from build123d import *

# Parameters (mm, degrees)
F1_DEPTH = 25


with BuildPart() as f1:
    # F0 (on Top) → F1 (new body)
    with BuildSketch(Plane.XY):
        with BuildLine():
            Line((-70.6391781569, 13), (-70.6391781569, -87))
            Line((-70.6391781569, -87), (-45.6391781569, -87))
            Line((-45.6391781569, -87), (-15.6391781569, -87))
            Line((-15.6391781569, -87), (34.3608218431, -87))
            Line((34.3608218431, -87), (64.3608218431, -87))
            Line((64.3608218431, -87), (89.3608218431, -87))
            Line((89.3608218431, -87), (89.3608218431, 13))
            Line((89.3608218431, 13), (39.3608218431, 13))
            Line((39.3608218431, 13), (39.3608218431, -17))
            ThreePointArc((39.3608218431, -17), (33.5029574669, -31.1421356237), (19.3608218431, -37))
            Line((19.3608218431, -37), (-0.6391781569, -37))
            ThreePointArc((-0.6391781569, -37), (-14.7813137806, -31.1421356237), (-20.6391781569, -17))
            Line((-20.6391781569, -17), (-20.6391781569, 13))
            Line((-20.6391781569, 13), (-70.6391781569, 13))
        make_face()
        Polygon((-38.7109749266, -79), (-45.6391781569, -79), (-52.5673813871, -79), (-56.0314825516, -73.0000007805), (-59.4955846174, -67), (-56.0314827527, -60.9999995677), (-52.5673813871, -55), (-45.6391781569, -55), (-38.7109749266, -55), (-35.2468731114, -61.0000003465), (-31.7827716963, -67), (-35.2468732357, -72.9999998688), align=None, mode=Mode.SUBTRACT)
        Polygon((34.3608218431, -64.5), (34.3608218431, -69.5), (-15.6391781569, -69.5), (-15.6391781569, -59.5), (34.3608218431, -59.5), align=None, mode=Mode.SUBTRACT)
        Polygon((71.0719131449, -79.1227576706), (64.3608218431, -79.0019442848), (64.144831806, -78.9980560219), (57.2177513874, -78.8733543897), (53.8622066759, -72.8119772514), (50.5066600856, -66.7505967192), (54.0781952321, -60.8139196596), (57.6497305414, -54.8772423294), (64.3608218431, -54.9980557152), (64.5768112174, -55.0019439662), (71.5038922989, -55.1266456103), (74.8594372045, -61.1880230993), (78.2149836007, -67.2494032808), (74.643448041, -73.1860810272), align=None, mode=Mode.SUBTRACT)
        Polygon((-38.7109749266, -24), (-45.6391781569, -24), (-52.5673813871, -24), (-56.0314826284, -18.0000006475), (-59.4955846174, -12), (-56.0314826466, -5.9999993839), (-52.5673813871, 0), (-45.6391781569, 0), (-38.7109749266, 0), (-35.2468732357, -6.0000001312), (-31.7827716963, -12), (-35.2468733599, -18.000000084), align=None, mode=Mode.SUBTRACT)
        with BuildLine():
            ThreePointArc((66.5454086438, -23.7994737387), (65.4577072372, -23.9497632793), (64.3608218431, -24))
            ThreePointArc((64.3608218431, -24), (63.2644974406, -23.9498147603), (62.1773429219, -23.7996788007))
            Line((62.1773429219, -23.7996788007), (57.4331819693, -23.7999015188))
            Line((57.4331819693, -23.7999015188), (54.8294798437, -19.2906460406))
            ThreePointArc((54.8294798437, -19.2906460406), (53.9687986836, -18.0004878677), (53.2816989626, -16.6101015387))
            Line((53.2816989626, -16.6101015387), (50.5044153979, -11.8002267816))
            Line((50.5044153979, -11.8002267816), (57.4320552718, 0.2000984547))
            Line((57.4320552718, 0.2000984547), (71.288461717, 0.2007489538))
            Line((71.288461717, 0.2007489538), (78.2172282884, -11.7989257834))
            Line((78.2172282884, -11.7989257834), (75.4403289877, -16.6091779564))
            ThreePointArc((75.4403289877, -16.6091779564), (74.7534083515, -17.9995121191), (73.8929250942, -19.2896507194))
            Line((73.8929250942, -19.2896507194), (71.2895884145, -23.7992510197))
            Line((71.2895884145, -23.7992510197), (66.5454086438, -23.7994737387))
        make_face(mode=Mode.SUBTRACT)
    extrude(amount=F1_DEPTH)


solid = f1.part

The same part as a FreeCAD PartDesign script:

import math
import FreeCAD as App
import Part
import Sketcher
from FreeCAD import Vector
Q = App.Units.Quantity


def add_polygon(sketch, points):
    """Adds a closed chain of lines whose ends are joined by coincident constraints."""
    first, n = sketch.GeometryCount, len(points)
    for a, b in zip(points, points[1:] + points[:1]):
        sketch.addGeometry(Part.LineSegment(App.Vector(*a, 0), App.Vector(*b, 0)), False)
    for i in range(n):
        sketch.addConstraint(Sketcher.Constraint("Coincident", first + i, 2, first + (i + 1) % n, 1))

doc = App.newDocument("Part")
params = doc.addObject("Spreadsheet::Sheet", "Params")
for row, (alias, value) in enumerate([
    ("sketch1_radius", "20 mm"),
    ("sketch1_radius2", "12 mm"),
    ("sketch1_width", "160 mm"),
    ("sketch1_width2", "50 mm"),
    ("sketch1_height", "100 mm"),
    ("pad1_length", "25 mm"),
], start=1):
    params.set(f"A{row}", alias)
    params.set(f"B{row}", "=" + value)
    params.setAlias(f"B{row}", alias)

body = doc.addObject("PartDesign::Body", "Body")

sketch1 = doc.addObject("Sketcher::SketchObject", "Sketch")
body.addObject(sketch1)
sketch1.AttachmentSupport = (doc.XY_Plane, [""])
sketch1.MapMode = "FlatFace"
sketch1.addGeometry(Part.LineSegment(Vector(-70.64, 13, 0), Vector(-70.64, -87, 0)), False)
sketch1.addGeometry(Part.LineSegment(Vector(-70.64, -87, 0), Vector(89.36, -87, 0)), False)
sketch1.addGeometry(Part.LineSegment(Vector(89.36, -87, 0), Vector(89.36, 13, 0)), False)
sketch1.addGeometry(Part.LineSegment(Vector(89.36, 13, 0), Vector(39.36, 13, 0)), False)
sketch1.addGeometry(Part.LineSegment(Vector(39.36, 13, 0), Vector(39.36, -17, 0)), False)
sketch1.addGeometry(Part.ArcOfCircle(Part.Circle(Vector(19.36, -17, 0), Vector(0, 0, 1), 20), math.radians(-90), math.radians(0)), False)
sketch1.addGeometry(Part.LineSegment(Vector(19.36, -37, 0), Vector(-0.64, -37, 0)), False)
sketch1.addGeometry(Part.ArcOfCircle(Part.Circle(Vector(-0.64, -17, 0), Vector(0, 0, 1), 20), math.radians(180), math.radians(270)), False)
sketch1.addGeometry(Part.LineSegment(Vector(-20.64, -17, 0), Vector(-20.64, 13, 0)), False)
sketch1.addGeometry(Part.LineSegment(Vector(-20.64, 13, 0), Vector(-70.64, 13, 0)), False)
add_polygon(sketch1, [(-31.78, -67), (-38.71, -79), (-52.57, -79), (-56.03, -73), (-59.5, -67), (-56.03, -61), (-52.57, -55), (-38.71, -55)])
add_polygon(sketch1, [(34.36, -59.5), (34.36, -69.5), (-15.64, -69.5), (-15.64, -59.5)])
add_polygon(sketch1, [(74.64, -73.19), (71.07, -79.12), (64.36, -79), (64.14, -79), (57.22, -78.87), (53.86, -72.81), (50.51, -66.75), (57.65, -54.88), (64.36, -55), (64.58, -55), (71.5, -55.13), (74.86, -61.19), (78.21, -67.25)])
add_polygon(sketch1, [(-35.25, -18), (-38.71, -24), (-52.57, -24), (-56.03, -18), (-59.5, -12), (-56.03, -6), (-52.57, 0), (-38.71, 0), (-31.78, -12)])
sketch1.addGeometry(Part.LineSegment(Vector(71.29, -23.8, 0), Vector(66.55, -23.8, 0)), False)
sketch1.addGeometry(Part.ArcOfCircle(Part.Circle(Vector(64.36, -12, 0), Vector(0, 0, 1), 12), math.radians(-90), math.radians(-79.51)), False)
sketch1.addGeometry(Part.ArcOfCircle(Part.Circle(Vector(64.36, -12, 0), Vector(0, 0, 1), 12), math.radians(-100.48), math.radians(-90)), False)
sketch1.addGeometry(Part.LineSegment(Vector(62.18, -23.8, 0), Vector(57.43, -23.8, 0)), False)
sketch1.addGeometry(Part.LineSegment(Vector(57.43, -23.8, 0), Vector(54.83, -19.29, 0)), False)
sketch1.addGeometry(Part.ArcOfCircle(Part.Circle(Vector(64.36, -12, 0), Vector(0, 0, 1), 12), math.radians(-157.41), math.radians(-142.59)), False)
sketch1.addGeometry(Part.LineSegment(Vector(53.28, -16.61, 0), Vector(50.5, -11.8, 0)), False)
sketch1.addGeometry(Part.LineSegment(Vector(50.5, -11.8, 0), Vector(57.43, 0.2, 0)), False)
sketch1.addGeometry(Part.LineSegment(Vector(57.43, 0.2, 0), Vector(71.29, 0.2, 0)), False)
sketch1.addGeometry(Part.LineSegment(Vector(71.29, 0.2, 0), Vector(78.22, -11.8, 0)), False)
sketch1.addGeometry(Part.LineSegment(Vector(78.22, -11.8, 0), Vector(75.44, -16.61, 0)), False)
sketch1.addGeometry(Part.ArcOfCircle(Part.Circle(Vector(64.36, -12, 0), Vector(0, 0, 1), 12), math.radians(-37.41), math.radians(-22.59)), False)
sketch1.addGeometry(Part.LineSegment(Vector(73.89, -19.29, 0), Vector(71.29, -23.8, 0)), False)
sketch1.addConstraint(Sketcher.Constraint("Coincident", 0, 2, 1, 1))
sketch1.addConstraint(Sketcher.Constraint("Coincident", 1, 2, 2, 1))
sketch1.addConstraint(Sketcher.Constraint("Coincident", 2, 2, 3, 1))
sketch1.addConstraint(Sketcher.Constraint("Coincident", 3, 2, 4, 1))
sketch1.addConstraint(Sketcher.Constraint("Tangent", 4, 2, 5, 2))
sketch1.addConstraint(Sketcher.Constraint("Tangent", 5, 1, 6, 1))
sketch1.addConstraint(Sketcher.Constraint("Tangent", 6, 2, 7, 2))
sketch1.addConstraint(Sketcher.Constraint("Tangent", 7, 1, 8, 1))
sketch1.addConstraint(Sketcher.Constraint("Coincident", 8, 2, 9, 1))
sketch1.addConstraint(Sketcher.Constraint("Coincident", 9, 2, 0, 1))
sketch1.addConstraint(Sketcher.Constraint("Coincident", 44, 2, 45, 2))
sketch1.addConstraint(Sketcher.Constraint("Tangent", 45, 1, 46, 2))
sketch1.addConstraint(Sketcher.Constraint("Coincident", 46, 1, 47, 1))
sketch1.addConstraint(Sketcher.Constraint("Coincident", 47, 2, 48, 1))
sketch1.addConstraint(Sketcher.Constraint("Coincident", 48, 2, 49, 2))
sketch1.addConstraint(Sketcher.Constraint("Coincident", 49, 1, 50, 1))
sketch1.addConstraint(Sketcher.Constraint("Coincident", 50, 2, 51, 1))
sketch1.addConstraint(Sketcher.Constraint("Coincident", 51, 2, 52, 1))
sketch1.addConstraint(Sketcher.Constraint("Coincident", 52, 2, 53, 1))
sketch1.addConstraint(Sketcher.Constraint("Coincident", 53, 2, 54, 1))
sketch1.addConstraint(Sketcher.Constraint("Coincident", 54, 2, 55, 2))
sketch1.addConstraint(Sketcher.Constraint("Coincident", 55, 1, 56, 1))
sketch1.addConstraint(Sketcher.Constraint("Coincident", 56, 2, 44, 1))
sketch1.addConstraint(Sketcher.Constraint("Vertical", 0))
sketch1.addConstraint(Sketcher.Constraint("Horizontal", 1))
sketch1.addConstraint(Sketcher.Constraint("Vertical", 2))
sketch1.addConstraint(Sketcher.Constraint("Horizontal", 3))
sketch1.addConstraint(Sketcher.Constraint("Vertical", 4))
sketch1.addConstraint(Sketcher.Constraint("Horizontal", 6))
sketch1.addConstraint(Sketcher.Constraint("Vertical", 8))
sketch1.addConstraint(Sketcher.Constraint("Horizontal", 9))
sketch1.addConstraint(Sketcher.Constraint("Horizontal", 11))
sketch1.addConstraint(Sketcher.Constraint("Horizontal", 16))
sketch1.addConstraint(Sketcher.Constraint("Vertical", 18))
sketch1.addConstraint(Sketcher.Constraint("Horizontal", 19))
sketch1.addConstraint(Sketcher.Constraint("Vertical", 20))
sketch1.addConstraint(Sketcher.Constraint("Horizontal", 21))
sketch1.addConstraint(Sketcher.Constraint("Horizontal", 36))
sketch1.addConstraint(Sketcher.Constraint("Horizontal", 41))
sketch1.addConstraint(Sketcher.Constraint("Coincident", 49, 3, 45, 3))
sketch1.addConstraint(Sketcher.Constraint("Coincident", 55, 3, 45, 3))
sketch1.addConstraint(Sketcher.Constraint("Equal", 5, 7))
sketch1.addConstraint(Sketcher.Constraint("Equal", 45, 46))
sketch1.addConstraint(Sketcher.Constraint("Equal", 46, 49))
sketch1.addConstraint(Sketcher.Constraint("Equal", 49, 55))
sketch1.addConstraint(Sketcher.Constraint("PointOnObject", 40, 2, -1))
sketch1.addConstraint(Sketcher.Constraint("Parallel", 12, 13))
sketch1.addConstraint(Sketcher.Constraint("Parallel", 10, 14))
sketch1.addConstraint(Sketcher.Constraint("Parallel", 14, 15))
sketch1.addConstraint(Sketcher.Constraint("Parallel", 13, 17))
sketch1.addConstraint(Sketcher.Constraint("Parallel", 23, 24))
sketch1.addConstraint(Sketcher.Constraint("Parallel", 24, 25))
sketch1.addConstraint(Sketcher.Constraint("Parallel", 26, 27))
sketch1.addConstraint(Sketcher.Constraint("Parallel", 22, 28))
sketch1.addConstraint(Sketcher.Constraint("Parallel", 25, 29))
sketch1.addConstraint(Sketcher.Constraint("Parallel", 29, 30))
sketch1.addConstraint(Sketcher.Constraint("Parallel", 30, 31))
sketch1.addConstraint(Sketcher.Constraint("Parallel", 27, 32))
sketch1.addConstraint(Sketcher.Constraint("Parallel", 32, 33))
sketch1.addConstraint(Sketcher.Constraint("Parallel", 28, 34))
sketch1.addConstraint(Sketcher.Constraint("Parallel", 15, 35))
sketch1.addConstraint(Sketcher.Constraint("Parallel", 17, 37))
sketch1.addConstraint(Sketcher.Constraint("Parallel", 37, 38))
sketch1.addConstraint(Sketcher.Constraint("Parallel", 35, 39))
sketch1.addConstraint(Sketcher.Constraint("Parallel", 39, 40))
sketch1.addConstraint(Sketcher.Constraint("Parallel", 38, 42))
sketch1.addConstraint(Sketcher.Constraint("Parallel", 40, 43))
sketch1.addConstraint(Sketcher.Constraint("Parallel", 44, 47))
sketch1.addConstraint(Sketcher.Constraint("Parallel", 48, 50))
sketch1.addConstraint(Sketcher.Constraint("Parallel", 47, 52))
sketch1.addConstraint(Sketcher.Constraint("Parallel", 50, 53))
sketch1.addConstraint(Sketcher.Constraint("Parallel", 51, 54))
sketch1.addConstraint(Sketcher.Constraint("Parallel", 54, 56))
sketch1.addConstraint(Sketcher.Constraint("Horizontal", 3, 2, 8, 2))
sketch1.addConstraint(Sketcher.Constraint("Horizontal", 13, 2, 17, 2))
sketch1.addConstraint(Sketcher.Constraint("Horizontal", 55, 3, 38, 2))
sketch1.addConstraint(Sketcher.Constraint("Horizontal", 38, 2, 42, 2))
sketch1.addConstraint(Sketcher.Constraint("Horizontal", 37, 2, 43, 2))
sketch1.addConstraint(Sketcher.Constraint("Horizontal", 36, 2, 45, 1))
sketch1.addConstraint(Sketcher.Constraint("Vertical", 12, 2, 14, 2))
sketch1.addConstraint(Sketcher.Constraint("Vertical", 11, 2, 15, 2))
sketch1.addConstraint(Sketcher.Constraint("Vertical", 10, 2, 16, 2))
sketch1.addConstraint(Sketcher.Constraint("Vertical", 55, 3, 23, 2))
sketch1.addConstraint(Sketcher.Constraint("Vertical", 23, 2, 29, 2))
sketch1.addConstraint(Sketcher.Constraint("Vertical", 16, 2, 35, 2))
sketch1.addConstraint(Sketcher.Constraint("Vertical", 15, 2, 36, 2))
sketch1.addConstraint(Sketcher.Constraint("Vertical", 14, 2, 37, 2))
sketch1.addConstraint(Sketcher.Constraint("Vertical", 13, 2, 38, 2))
sketch1.addConstraint(Sketcher.Constraint("Vertical", 37, 2, 39, 2))
sketch1.addConstraint(Sketcher.Constraint("Vertical", 36, 2, 40, 2))
sketch1.addConstraint(Sketcher.Constraint("Vertical", 29, 2, 45, 1))
sketch1.addConstraint(Sketcher.Constraint("Equal", 3, 9))
sketch1.addConstraint(Sketcher.Constraint("Equal", 9, 19))
sketch1.addConstraint(Sketcher.Constraint("Equal", 12, 13))
sketch1.addConstraint(Sketcher.Constraint("Equal", 15, 22))
sketch1.addConstraint(Sketcher.Constraint("Equal", 22, 25))
sketch1.addConstraint(Sketcher.Constraint("Equal", 25, 26))
sketch1.addConstraint(Sketcher.Constraint("Equal", 14, 27))
sketch1.addConstraint(Sketcher.Constraint("Equal", 17, 28))
sketch1.addConstraint(Sketcher.Constraint("Equal", 23, 29))
sketch1.addConstraint(Sketcher.Constraint("Equal", 24, 30))
sketch1.addConstraint(Sketcher.Constraint("Equal", 27, 31))
sketch1.addConstraint(Sketcher.Constraint("Equal", 31, 32))
sketch1.addConstraint(Sketcher.Constraint("Equal", 42, 51))
sketch1.addConstraint(Sketcher.Constraint("Equal", 51, 52))
sketch1.addConstraint(Sketcher.Constraint("Equal", 52, 53))
sketch1.addConstraint(Sketcher.Constraint("Radius", 5, 20.0))
sketch1.addConstraint(Sketcher.Constraint("Radius", 45, 12.0))
sketch1.addConstraint(Sketcher.Constraint("DistanceX", 1, 1, 1, 2, 160.0))
sketch1.addConstraint(Sketcher.Constraint("DistanceX", 3, 2, 3, 1, 50.0))
sketch1.addConstraint(Sketcher.Constraint("DistanceY", 0, 2, 0, 1, 100.0))
sketch1.addConstraint(Sketcher.Constraint("DistanceY", 4, 2, 4, 1, 30.0))
sketch1.addConstraint(Sketcher.Constraint("DistanceY", 18, 2, 18, 1, 10.0))
sketch1.addConstraint(Sketcher.Constraint("Angle", 10, Q("-120 deg")))
sketch1.addConstraint(Sketcher.Constraint("DistanceY", 5, 3, -1, 1, 17.0))
sketch1.addConstraint(Sketcher.Constraint("DistanceY", 10, 2, -1, 1, 79.0))
sketch1.addConstraint(Sketcher.Constraint("DistanceY", 18, 2, -1, 1, 69.5))
sketch1.addConstraint(Sketcher.Constraint("DistanceY", 47, 2, -1, 1, 23.799902))
sketch1.addConstraint(Sketcher.Constraint("DistanceX", -1, 1, 49, 1, 53.281699))
sketch1.addConstraint(Sketcher.Constraint("DistanceY", 49, 1, -1, 1, 16.610102))
sketch1.addConstraint(Sketcher.Constraint("DistanceY", -1, 1, 51, 2, 0.200098))
sketch1.addConstraint(Sketcher.Constraint("Distance", 23, 6.712179))
sketch1.addConstraint(Sketcher.Constraint("Distance", 44, 4.74418))
sketch1.addConstraint(Sketcher.Constraint("Distance", 47, 4.744161))
sketch1.addConstraint(Sketcher.Constraint("Distance", 48, 5.206981))
sketch1.addConstraint(Sketcher.Constraint("Distance", 54, 5.55425))
sketch1.addConstraint(Sketcher.Constraint("DistanceX", 11, 2, 11, 1, 13.856406))
sketch1.addConstraint(Sketcher.Constraint("DistanceX", -1, 1, 5, 3, 19.360822))
sketch1.addConstraint(Sketcher.Constraint("DistanceX", 11, 2, -1, 1, 52.567381))
sketch1.addConstraint(Sketcher.Constraint("DistanceX", -1, 1, 18, 2, 34.360822))
sketch1.addConstraint(Sketcher.Constraint("DistanceX", -1, 1, 24, 2, 64.144832))
sketch1.addConstraint(Sketcher.Constraint("DistanceX", -1, 1, 25, 2, 57.217751))
sketch1.addConstraint(Sketcher.Constraint("DistanceX", -1, 1, 27, 2, 50.50666))
sketch1.addConstraint(Sketcher.Constraint("DistanceY", 34, 2, -1, 1, 73.186081))
sketch1.addConstraint(Sketcher.Constraint("DistanceX", -1, 1, 44, 2, 66.545409))
sketch1.addConstraint(Sketcher.Constraint("DistanceY", 46, 1, -1, 1, 23.799679))
sketch1.setExpression("Constraints[140]", "Params.sketch1_radius")
sketch1.setExpression("Constraints[141]", "Params.sketch1_radius2")
sketch1.setExpression("Constraints[142]", "Params.sketch1_width")
sketch1.setExpression("Constraints[143]", "Params.sketch1_width2")
sketch1.setExpression("Constraints[144]", "Params.sketch1_height")
pad1 = doc.addObject("PartDesign::Pad", "Pad")
body.addObject(pad1)
pad1.Profile = sketch1
pad1.setExpression("Length", "Params.pad1_length")

doc.recompute()
